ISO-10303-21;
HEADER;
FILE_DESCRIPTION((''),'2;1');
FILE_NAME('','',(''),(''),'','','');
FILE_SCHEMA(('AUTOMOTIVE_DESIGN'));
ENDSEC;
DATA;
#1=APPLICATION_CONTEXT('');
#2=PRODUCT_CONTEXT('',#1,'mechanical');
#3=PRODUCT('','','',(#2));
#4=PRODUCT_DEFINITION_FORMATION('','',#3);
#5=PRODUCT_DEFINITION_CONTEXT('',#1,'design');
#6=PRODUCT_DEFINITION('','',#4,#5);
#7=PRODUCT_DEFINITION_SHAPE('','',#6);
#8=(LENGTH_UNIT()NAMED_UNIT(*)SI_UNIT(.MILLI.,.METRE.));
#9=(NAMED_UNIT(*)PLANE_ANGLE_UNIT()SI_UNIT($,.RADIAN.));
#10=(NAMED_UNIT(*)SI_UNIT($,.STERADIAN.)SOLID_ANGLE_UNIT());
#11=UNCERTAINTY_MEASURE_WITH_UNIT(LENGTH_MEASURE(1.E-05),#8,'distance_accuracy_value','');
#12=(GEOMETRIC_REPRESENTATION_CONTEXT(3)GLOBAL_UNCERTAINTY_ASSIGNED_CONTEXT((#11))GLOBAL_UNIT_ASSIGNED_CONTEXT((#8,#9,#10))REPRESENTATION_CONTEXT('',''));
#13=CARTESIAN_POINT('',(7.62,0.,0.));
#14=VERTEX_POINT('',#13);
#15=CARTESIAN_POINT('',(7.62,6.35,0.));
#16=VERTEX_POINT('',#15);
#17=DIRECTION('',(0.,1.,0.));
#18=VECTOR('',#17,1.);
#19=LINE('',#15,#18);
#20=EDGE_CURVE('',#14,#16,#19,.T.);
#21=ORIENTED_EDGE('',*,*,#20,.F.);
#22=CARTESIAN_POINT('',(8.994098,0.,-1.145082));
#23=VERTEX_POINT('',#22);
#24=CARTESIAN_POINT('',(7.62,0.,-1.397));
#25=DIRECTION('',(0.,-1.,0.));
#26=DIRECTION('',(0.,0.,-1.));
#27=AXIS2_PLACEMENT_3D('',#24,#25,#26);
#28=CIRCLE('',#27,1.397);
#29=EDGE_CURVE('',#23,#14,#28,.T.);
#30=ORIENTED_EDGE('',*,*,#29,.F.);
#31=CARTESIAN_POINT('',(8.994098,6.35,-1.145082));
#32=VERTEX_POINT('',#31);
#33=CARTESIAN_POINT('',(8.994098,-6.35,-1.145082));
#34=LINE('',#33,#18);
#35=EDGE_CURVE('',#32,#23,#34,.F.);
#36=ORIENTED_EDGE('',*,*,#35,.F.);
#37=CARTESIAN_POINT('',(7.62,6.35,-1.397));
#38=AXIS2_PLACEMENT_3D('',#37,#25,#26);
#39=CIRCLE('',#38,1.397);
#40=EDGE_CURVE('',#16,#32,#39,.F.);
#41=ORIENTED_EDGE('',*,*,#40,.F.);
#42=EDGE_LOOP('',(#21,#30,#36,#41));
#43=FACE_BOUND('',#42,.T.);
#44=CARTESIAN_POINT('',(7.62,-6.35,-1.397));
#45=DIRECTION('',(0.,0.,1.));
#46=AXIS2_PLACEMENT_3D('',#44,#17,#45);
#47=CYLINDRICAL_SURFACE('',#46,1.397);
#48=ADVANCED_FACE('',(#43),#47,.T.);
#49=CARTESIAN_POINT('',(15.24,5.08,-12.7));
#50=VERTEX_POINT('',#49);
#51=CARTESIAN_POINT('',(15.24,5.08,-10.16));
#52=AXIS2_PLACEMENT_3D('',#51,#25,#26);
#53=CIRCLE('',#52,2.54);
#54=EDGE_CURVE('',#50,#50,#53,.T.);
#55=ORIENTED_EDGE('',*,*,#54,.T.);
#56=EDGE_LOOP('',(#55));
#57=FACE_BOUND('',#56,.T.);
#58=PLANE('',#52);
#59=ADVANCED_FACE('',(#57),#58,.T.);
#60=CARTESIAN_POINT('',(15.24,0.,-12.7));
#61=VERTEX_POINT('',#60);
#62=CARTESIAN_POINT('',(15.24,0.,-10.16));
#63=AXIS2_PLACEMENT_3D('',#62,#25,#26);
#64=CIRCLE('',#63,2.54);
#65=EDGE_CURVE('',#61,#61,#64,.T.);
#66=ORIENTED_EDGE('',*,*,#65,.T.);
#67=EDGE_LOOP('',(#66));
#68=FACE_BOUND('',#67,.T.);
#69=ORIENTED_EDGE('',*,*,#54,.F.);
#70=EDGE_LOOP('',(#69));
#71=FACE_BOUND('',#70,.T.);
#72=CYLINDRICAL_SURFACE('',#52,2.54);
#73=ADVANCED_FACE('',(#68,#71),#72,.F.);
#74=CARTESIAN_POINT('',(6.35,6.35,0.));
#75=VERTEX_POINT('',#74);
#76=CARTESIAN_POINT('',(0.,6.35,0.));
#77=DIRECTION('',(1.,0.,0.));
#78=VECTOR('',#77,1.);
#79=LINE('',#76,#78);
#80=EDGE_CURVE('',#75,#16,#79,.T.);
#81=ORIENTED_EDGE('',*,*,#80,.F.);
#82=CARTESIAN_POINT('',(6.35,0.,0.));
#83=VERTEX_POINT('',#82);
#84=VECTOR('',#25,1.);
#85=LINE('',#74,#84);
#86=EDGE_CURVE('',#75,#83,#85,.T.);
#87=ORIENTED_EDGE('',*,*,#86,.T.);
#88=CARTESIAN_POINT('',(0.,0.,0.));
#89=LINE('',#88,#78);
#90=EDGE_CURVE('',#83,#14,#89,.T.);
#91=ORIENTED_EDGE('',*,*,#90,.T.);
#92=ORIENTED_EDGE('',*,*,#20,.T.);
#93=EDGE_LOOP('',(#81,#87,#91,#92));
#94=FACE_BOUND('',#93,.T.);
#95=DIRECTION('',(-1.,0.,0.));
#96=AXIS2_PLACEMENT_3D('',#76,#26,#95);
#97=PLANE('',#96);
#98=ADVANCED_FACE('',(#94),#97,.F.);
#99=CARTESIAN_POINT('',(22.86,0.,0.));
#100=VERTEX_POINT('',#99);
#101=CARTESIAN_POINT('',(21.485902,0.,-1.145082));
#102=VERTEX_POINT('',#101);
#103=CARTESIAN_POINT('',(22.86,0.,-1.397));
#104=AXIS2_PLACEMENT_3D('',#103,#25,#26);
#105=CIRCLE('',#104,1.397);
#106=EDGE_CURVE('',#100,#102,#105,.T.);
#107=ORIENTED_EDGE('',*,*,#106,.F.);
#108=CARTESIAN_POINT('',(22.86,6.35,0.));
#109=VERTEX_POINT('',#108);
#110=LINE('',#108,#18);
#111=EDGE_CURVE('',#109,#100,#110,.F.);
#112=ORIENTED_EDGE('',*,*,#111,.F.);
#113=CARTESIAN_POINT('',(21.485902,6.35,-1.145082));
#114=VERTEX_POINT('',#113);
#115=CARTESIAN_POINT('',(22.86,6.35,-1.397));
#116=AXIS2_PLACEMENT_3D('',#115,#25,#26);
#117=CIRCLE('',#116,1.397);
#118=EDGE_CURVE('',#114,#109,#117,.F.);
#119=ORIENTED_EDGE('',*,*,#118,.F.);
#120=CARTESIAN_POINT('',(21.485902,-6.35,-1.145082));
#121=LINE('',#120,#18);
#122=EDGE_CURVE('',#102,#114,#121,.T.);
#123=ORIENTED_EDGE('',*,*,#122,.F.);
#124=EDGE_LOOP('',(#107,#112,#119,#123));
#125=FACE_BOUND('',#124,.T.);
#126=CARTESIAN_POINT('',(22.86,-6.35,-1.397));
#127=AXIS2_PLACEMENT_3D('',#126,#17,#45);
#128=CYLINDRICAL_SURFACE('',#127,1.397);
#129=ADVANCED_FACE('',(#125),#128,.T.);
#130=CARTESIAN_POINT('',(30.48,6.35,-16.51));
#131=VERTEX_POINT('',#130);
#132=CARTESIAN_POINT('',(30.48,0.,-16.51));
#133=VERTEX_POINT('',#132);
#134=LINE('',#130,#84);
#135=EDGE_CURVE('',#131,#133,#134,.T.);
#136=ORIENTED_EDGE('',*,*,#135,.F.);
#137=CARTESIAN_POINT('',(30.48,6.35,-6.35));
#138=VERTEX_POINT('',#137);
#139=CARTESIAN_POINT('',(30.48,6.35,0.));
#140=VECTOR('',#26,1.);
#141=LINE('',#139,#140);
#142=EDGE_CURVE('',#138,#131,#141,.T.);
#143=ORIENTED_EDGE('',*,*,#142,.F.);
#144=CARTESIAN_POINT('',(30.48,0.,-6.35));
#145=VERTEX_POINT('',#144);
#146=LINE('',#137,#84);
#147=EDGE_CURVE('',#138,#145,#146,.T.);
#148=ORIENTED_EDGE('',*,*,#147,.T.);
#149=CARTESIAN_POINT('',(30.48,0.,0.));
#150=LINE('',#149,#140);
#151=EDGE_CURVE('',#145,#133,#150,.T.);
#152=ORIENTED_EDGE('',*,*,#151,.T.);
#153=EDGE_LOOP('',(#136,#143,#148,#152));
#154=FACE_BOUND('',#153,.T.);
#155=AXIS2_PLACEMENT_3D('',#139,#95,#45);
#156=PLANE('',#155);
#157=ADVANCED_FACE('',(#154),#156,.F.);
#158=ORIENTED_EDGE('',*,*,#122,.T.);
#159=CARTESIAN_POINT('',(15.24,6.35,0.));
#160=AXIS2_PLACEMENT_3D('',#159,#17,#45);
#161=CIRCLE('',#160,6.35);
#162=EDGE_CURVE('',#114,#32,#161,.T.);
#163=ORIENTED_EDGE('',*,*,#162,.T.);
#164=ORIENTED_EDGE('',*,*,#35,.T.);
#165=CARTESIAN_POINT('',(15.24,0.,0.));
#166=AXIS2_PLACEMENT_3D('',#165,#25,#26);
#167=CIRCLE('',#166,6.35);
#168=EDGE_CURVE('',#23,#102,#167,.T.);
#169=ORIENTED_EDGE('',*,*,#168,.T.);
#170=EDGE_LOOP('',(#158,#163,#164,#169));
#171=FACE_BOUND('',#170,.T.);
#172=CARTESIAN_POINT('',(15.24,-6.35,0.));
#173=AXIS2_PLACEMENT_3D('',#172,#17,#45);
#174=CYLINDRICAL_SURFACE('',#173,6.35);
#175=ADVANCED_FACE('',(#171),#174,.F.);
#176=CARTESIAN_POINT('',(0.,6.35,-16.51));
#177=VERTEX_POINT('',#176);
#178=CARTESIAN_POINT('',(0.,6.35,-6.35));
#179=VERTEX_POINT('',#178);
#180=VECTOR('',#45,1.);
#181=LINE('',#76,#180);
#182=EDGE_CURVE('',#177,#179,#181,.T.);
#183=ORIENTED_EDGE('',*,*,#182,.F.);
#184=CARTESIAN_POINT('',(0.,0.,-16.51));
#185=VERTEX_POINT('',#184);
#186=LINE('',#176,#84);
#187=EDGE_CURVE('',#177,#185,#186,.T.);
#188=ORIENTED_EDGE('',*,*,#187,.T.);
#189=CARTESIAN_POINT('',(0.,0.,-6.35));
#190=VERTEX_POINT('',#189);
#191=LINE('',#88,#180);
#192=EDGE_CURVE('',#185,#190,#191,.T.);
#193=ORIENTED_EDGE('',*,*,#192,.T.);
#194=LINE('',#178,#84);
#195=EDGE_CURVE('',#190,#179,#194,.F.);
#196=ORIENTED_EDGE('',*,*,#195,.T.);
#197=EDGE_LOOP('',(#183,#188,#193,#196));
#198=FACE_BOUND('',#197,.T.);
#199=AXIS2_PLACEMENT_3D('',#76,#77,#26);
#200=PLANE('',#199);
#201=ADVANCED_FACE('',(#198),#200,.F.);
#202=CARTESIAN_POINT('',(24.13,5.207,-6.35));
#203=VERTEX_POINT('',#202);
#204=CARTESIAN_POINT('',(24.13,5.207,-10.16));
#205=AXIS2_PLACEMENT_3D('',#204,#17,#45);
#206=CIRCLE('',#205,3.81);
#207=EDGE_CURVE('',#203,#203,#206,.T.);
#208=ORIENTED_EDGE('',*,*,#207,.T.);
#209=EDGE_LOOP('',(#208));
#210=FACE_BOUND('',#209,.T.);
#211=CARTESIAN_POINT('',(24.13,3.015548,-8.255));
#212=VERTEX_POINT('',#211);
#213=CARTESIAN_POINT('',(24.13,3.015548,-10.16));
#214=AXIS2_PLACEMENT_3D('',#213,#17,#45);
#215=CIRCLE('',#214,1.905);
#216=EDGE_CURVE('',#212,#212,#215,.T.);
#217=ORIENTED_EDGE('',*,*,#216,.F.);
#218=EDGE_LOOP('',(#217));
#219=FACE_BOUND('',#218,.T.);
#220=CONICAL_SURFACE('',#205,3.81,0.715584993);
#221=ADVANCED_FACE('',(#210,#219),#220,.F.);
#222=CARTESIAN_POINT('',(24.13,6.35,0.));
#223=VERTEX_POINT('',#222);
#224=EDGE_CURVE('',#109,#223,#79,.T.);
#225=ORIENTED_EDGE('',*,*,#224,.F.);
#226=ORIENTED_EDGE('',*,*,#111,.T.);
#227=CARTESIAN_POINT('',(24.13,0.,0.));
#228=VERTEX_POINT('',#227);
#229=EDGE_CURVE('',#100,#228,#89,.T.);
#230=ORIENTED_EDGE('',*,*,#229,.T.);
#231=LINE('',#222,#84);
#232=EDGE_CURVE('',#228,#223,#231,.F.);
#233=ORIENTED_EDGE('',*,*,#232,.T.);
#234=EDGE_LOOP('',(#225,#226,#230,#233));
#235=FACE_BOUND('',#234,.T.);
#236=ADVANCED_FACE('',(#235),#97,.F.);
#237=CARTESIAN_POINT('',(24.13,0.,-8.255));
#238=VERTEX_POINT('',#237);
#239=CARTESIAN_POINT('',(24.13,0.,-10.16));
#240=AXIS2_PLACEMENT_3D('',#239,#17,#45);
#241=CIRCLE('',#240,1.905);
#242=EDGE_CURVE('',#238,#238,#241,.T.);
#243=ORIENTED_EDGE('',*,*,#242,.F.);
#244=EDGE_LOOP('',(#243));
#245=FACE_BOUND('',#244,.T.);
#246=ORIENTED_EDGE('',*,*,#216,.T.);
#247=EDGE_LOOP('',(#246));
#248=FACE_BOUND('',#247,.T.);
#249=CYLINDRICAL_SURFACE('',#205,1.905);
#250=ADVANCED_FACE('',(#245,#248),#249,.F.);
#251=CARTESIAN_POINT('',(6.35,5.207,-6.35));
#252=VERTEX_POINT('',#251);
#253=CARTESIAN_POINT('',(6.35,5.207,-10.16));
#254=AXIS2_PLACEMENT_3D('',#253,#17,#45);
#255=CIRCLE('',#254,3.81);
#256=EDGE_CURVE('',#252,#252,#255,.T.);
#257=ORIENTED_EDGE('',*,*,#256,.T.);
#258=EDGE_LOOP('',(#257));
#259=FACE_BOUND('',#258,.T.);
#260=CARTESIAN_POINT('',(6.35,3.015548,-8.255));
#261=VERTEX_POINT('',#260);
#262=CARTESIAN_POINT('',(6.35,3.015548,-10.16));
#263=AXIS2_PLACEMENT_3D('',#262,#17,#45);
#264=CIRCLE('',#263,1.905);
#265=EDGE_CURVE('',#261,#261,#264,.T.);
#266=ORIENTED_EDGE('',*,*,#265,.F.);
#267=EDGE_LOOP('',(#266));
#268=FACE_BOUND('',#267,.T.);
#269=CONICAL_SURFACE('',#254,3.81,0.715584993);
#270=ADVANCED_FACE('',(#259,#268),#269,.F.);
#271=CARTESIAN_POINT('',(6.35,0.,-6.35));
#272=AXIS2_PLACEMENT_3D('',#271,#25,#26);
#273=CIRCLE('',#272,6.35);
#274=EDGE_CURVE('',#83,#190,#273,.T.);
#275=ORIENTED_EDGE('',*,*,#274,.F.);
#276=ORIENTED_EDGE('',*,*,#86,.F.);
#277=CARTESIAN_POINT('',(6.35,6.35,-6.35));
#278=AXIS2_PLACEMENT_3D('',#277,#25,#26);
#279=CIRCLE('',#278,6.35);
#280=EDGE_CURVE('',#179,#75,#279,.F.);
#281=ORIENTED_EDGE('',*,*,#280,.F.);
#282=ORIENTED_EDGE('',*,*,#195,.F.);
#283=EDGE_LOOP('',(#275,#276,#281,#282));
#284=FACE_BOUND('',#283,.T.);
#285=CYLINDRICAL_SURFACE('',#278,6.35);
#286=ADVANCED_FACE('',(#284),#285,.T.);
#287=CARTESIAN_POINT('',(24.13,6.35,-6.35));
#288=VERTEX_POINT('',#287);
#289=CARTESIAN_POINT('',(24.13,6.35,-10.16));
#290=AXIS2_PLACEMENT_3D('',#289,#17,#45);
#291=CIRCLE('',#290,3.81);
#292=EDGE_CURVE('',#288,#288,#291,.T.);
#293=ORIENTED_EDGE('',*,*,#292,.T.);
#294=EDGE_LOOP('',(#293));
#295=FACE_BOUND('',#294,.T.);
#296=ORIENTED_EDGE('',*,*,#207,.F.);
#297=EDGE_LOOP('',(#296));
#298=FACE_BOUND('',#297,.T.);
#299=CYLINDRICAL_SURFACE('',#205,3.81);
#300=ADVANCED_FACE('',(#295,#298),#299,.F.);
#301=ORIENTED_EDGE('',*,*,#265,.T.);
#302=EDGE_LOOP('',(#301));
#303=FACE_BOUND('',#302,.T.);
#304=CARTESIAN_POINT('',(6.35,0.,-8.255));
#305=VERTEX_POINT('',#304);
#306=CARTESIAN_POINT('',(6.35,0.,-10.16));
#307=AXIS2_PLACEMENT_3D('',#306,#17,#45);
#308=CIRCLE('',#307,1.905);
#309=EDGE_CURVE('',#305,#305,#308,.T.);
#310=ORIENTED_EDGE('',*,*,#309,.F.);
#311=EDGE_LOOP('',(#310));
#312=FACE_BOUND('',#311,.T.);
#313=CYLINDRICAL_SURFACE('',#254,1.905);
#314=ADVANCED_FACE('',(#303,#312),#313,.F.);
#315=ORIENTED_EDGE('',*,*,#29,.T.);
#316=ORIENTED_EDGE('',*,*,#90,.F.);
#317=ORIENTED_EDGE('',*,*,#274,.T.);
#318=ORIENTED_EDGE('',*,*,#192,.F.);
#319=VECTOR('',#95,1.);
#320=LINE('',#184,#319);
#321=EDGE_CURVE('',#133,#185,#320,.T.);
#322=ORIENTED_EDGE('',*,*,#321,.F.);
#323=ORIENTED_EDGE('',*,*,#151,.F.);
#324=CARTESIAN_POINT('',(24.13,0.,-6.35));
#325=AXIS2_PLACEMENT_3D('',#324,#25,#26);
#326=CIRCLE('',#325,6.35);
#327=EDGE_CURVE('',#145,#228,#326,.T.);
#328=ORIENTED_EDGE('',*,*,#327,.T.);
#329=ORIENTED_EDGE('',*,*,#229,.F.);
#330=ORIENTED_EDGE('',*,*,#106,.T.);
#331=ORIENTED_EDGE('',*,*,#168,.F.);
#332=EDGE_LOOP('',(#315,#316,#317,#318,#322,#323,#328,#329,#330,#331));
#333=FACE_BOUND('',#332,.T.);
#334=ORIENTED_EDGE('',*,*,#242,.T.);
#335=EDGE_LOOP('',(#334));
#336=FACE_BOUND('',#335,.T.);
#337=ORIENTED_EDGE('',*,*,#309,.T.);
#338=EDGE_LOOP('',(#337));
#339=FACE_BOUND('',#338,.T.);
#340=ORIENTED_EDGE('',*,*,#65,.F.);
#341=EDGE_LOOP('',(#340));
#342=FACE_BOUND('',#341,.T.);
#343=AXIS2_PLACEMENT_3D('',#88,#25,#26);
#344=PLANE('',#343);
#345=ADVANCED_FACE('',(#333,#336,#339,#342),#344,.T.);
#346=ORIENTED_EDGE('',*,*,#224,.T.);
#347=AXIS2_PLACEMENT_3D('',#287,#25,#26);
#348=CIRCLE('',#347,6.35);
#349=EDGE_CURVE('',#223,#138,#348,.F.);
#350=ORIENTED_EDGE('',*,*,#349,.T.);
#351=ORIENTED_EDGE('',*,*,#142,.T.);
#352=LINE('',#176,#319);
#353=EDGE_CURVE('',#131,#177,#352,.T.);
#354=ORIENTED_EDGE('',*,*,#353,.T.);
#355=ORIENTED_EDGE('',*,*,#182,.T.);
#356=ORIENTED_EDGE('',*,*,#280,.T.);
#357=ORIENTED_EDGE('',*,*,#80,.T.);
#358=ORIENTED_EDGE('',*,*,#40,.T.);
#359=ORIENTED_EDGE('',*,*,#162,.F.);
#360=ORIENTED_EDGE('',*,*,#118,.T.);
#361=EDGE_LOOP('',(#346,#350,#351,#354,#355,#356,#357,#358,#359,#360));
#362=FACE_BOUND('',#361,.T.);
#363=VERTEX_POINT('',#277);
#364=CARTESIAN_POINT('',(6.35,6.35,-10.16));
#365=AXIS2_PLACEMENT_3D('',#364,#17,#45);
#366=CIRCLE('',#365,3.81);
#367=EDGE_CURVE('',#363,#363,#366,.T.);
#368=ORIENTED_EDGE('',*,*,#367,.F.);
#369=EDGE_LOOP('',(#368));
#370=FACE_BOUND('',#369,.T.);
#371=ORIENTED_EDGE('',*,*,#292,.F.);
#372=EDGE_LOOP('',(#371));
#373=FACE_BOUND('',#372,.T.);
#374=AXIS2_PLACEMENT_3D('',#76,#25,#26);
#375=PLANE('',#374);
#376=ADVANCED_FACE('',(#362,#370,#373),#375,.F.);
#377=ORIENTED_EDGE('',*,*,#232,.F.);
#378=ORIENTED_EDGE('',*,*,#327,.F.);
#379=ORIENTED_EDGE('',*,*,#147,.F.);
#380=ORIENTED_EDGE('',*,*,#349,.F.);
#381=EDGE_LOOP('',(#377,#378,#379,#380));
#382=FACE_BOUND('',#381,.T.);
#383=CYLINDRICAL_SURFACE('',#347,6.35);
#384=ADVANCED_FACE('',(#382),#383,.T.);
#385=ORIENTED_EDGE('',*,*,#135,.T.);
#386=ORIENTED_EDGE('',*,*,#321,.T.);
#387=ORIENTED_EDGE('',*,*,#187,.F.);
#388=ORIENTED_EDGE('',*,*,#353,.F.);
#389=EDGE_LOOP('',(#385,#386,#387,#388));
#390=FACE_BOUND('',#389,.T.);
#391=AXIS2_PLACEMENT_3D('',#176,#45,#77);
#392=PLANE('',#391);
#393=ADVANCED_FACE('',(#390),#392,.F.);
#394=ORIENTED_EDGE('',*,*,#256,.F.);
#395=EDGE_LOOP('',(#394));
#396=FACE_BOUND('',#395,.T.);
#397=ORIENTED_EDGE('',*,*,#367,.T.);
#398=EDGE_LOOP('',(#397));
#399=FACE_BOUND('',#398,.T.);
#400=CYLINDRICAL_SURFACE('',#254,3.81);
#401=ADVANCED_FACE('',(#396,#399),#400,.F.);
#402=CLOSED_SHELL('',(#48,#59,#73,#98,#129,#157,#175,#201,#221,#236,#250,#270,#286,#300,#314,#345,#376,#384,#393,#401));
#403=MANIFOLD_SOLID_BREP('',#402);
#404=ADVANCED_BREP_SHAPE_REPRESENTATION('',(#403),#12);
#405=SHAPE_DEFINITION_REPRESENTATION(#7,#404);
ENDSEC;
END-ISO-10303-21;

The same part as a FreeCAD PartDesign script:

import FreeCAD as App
import Part
import Sketcher
from FreeCAD import Vector
Q = App.Units.Quantity


def edges_at(feature, points):
    """Names of the edges that pass closest to the given points."""
    edges = feature.Shape.Edges
    near = lambda p: min(range(len(edges)), key=lambda i: edges[i].distToShape(Part.Vertex(*p))[0])
    return sorted({f"Edge{near(p) + 1}" for p in points})


def add_polygon(sketch, points):
    """Adds a closed chain of lines whose ends are joined by coincident constraints."""
    first, n = sketch.GeometryCount, len(points)
    for a, b in zip(points, points[1:] + points[:1]):
        sketch.addGeometry(Part.LineSegment(App.Vector(*a, 0), App.Vector(*b, 0)), False)
    for i in range(n):
        sketch.addConstraint(Sketcher.Constraint("Coincident", first + i, 2, first + (i + 1) % n, 1))

doc = App.newDocument("Part")
params = doc.addObject("Spreadsheet::Sheet", "Params")
for row, (alias, value) in enumerate([
    ("sketch1_width", "1.2 in"),
    ("sketch1_height", "0.65 in"),
    ("pad1_length", "0.25 in"),
    ("fillet_radius", "0.25 in"),
    ("sketch2_diameter", "0.5 in"),
    ("pocket1_length", "0.5 in"),
    ("fillet2_radius", "0.055 in"),
    ("sketch3_diameter", "0.3 in"),
    ("pocket2_length", "0.045 in"),
    ("sketch4_diameter", "0.15 in"),
    ("hole_diameter", "0.15 in"),
    ("hole_csink_diameter", "0.3 in"),
    ("sketch5_diameter", "0.2 in"),
    ("pocket3_length", "0.2 in"),
], start=1):
    params.set(f"A{row}", alias)
    params.set(f"B{row}", "=" + value)
    params.setAlias(f"B{row}", alias)

body = doc.addObject("PartDesign::Body", "Body")

# Sketch on XZ plane
sketch1 = doc.addObject("Sketcher::SketchObject", "Sketch")
body.addObject(sketch1)
sketch1.AttachmentSupport = (doc.XZ_Plane, [""])
sketch1.MapMode = "FlatFace"
add_polygon(sketch1, [(0, -17), (0, 0), (30, 0), (30, -17)])  # lines 0-3
sketch1.addConstraint([
    Sketcher.Constraint("Vertical", 0),
    Sketcher.Constraint("Horizontal", 1),
    Sketcher.Constraint("Vertical", 2),
    Sketcher.Constraint("Horizontal", 3),
    Sketcher.Constraint("Coincident", 0, 2, -1, 1),
    Sketcher.Constraint("DistanceX", 1, 1, 1, 2, Q("1.2 in")),
    Sketcher.Constraint("DistanceY", 0, 1, 0, 2, Q("0.65 in")),
])
sketch1.setExpression("Constraints[9]", "Params.sketch1_width")
sketch1.setExpression("Constraints[10]", "Params.sketch1_height")
pad1 = doc.addObject("PartDesign::Pad", "Pad")
body.addObject(pad1)
pad1.Profile = sketch1
pad1.setExpression("Length", "Params.pad1_length")
pad1.Reversed = True
doc.recompute()

fillet = doc.addObject("PartDesign::Fillet", "Fillet")
body.addObject(fillet)
fillet.Base = (pad1, edges_at(pad1, [(30.48, 3.175, 0), (0, 3.175, 0)]))
fillet.setExpression("Radius", "Params.fillet_radius")

# Sketch on XZ plane
sketch2 = doc.addObject("Sketcher::SketchObject", "Sketch001")
body.addObject(sketch2)
sketch2.AttachmentSupport = (doc.XZ_Plane, [""])
sketch2.MapMode = "FlatFace"
sketch2.AttachmentOffset = App.Placement(Vector(0, 0, -0.25 * 25.4), App.Rotation())
sketch2.addGeometry(Part.Circle(Vector(15, 0, 0), Vector(0, 0, 1), 6), False)
sketch2.addConstraint([
    Sketcher.Constraint("PointOnObject", 0, 3, -1),
    Sketcher.Constraint("Diameter", 0, Q("0.5 in")),
    Sketcher.Constraint("DistanceX", -1, 1, 0, 3, Q("0.6 in")),
])
sketch2.setExpression("Constraints[1]", "Params.sketch2_diameter")
pocket1 = doc.addObject("PartDesign::Pocket", "Pocket")
body.addObject(pocket1)
pocket1.Profile = sketch2
pocket1.setExpression("Length", "Params.pocket1_length")
pocket1.Reversed = True
doc.recompute()

fillet2 = doc.addObject("PartDesign::Fillet", "Fillet001")
body.addObject(fillet2)
fillet2.Base = (pocket1, edges_at(pocket1, [(8.89, 3.175, 0), (21.59, 3.175, 0)]))
fillet2.setExpression("Radius", "Params.fillet2_radius")

# Sketch on XZ plane
sketch3 = doc.addObject("Sketcher::SketchObject", "Sketch002")
body.addObject(sketch3)
sketch3.AttachmentSupport = (doc.XZ_Plane, [""])
sketch3.MapMode = "FlatFace"
sketch3.AttachmentOffset = App.Placement(Vector(0, 0, -0.25 * 25.4), App.Rotation())
sketch3.addGeometry([
    Part.Circle(Vector(6.3, -10.2, 0), Vector(0, 0, 1), 3.8),
    Part.Circle(Vector(24.1, -10.2, 0), Vector(0, 0, 1), 3.8),
], False)
sketch3.addConstraint([
    Sketcher.Constraint("Equal", 0, 1),
    Sketcher.Constraint("Horizontal", 0, 3, 1, 3),
    Sketcher.Constraint("Diameter", 0, Q("0.3 in")),
    Sketcher.Constraint("DistanceY", 0, 3, -1, 1, Q("0.4 in")),
    Sketcher.Constraint("DistanceX", 0, 3, 1, 3, Q("0.7 in")),
    Sketcher.Constraint("DistanceX", -1, 1, 0, 3, Q("0.25 in")),
])
sketch3.setExpression("Constraints[2]", "Params.sketch3_diameter")
pocket2 = doc.addObject("PartDesign::Pocket", "Pocket001")
body.addObject(pocket2)
pocket2.Profile = sketch3
pocket2.setExpression("Length", "Params.pocket2_length")
pocket2.Reversed = True

# Sketch on XZ plane
sketch4 = doc.addObject("Sketcher::SketchObject", "Sketch003")
body.addObject(sketch4)
sketch4.AttachmentSupport = (doc.XZ_Plane, [""])
sketch4.MapMode = "FlatFace"
sketch4.AttachmentOffset = App.Placement(Vector(0, 0, -0.205 * 25.4), App.Rotation())
sketch4.addGeometry([
    Part.Circle(Vector(6.3, -10.2, 0), Vector(0, 0, 1), 1.9),
    Part.Circle(Vector(24.1, -10.2, 0), Vector(0, 0, 1), 1.9),
], False)
sketch4.addConstraint([
    Sketcher.Constraint("Equal", 0, 1),
    Sketcher.Constraint("Horizontal", 0, 3, 1, 3),
    Sketcher.Constraint("Diameter", 0, Q("0.15 in")),
    Sketcher.Constraint("DistanceY", 0, 3, -1, 1, Q("0.4 in")),
    Sketcher.Constraint("DistanceX", 0, 3, 1, 3, Q("0.7 in")),
    Sketcher.Constraint("DistanceX", -1, 1, 0, 3, Q("0.25 in")),
])
sketch4.setExpression("Constraints[2]", "Params.sketch4_diameter")
doc.recompute()
hole = doc.addObject("PartDesign::Hole", "Hole")
body.addObject(hole)
hole.Profile = sketch4
hole.ThreadType = "None"
hole.setExpression("Diameter", "Params.hole_diameter")
hole.DepthType = "ThroughAll"
hole.HoleCutType = "Countersink"
hole.setExpression("HoleCutDiameter", "Params.hole_csink_diameter")
hole.HoleCutCountersinkAngle = 82
hole.Reversed = True

# Sketch on XZ plane
sketch5 = doc.addObject("Sketcher::SketchObject", "Sketch004")
body.addObject(sketch5)
sketch5.AttachmentSupport = (doc.XZ_Plane, [""])
sketch5.MapMode = "FlatFace"
sketch5.addGeometry(Part.Circle(Vector(15.2, -10.2, 0), Vector(0, 0, 1), 2.5), False)
sketch5.addConstraint([
    Sketcher.Constraint("Diameter", 0, Q("0.2 in")),
    Sketcher.Constraint("DistanceX", -1, 1, 0, 3, Q("0.6 in")),
    Sketcher.Constraint("DistanceY", 0, 3, -1, 1, Q("0.4 in")),
])
sketch5.setExpression("Constraints[0]", "Params.sketch5_diameter")
pocket3 = doc.addObject("PartDesign::Pocket", "Pocket002")
body.addObject(pocket3)
pocket3.Profile = sketch5
pocket3.setExpression("Length", "Params.pocket3_length")

doc.recompute()
